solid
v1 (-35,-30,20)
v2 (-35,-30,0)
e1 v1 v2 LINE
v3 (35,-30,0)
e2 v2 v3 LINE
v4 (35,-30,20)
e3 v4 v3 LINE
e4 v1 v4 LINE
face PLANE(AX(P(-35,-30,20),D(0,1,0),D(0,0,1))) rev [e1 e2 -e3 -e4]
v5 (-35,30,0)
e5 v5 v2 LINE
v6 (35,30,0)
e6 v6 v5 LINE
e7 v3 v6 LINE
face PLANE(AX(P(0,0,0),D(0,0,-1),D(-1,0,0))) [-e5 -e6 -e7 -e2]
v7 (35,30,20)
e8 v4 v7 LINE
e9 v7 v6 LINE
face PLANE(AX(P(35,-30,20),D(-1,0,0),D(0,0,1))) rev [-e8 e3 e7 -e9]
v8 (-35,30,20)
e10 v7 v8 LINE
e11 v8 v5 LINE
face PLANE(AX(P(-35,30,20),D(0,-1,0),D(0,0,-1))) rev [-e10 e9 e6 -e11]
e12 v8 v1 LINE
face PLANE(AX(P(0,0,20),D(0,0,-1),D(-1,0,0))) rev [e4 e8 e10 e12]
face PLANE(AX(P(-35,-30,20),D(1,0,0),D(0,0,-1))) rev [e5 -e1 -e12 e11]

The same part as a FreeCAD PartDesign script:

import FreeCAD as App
import Part
import Sketcher

V = App.Vector

doc = App.newDocument("Part")
body = doc.addObject("PartDesign::Body", "Body")

# Sketch on XY plane
sketch1 = body.newObject("Sketcher::SketchObject", "Sketch")
sketch1.AttachmentSupport = (doc.getObject("XY_Plane"), [""])
sketch1.MapMode = "FlatFace"
sketch1.addGeometry(Part.LineSegment(V(-35, 30, 0), V(-35, -30, 0)), False)
sketch1.addGeometry(Part.LineSegment(V(-35, -30, 0), V(35, -30, 0)), False)
sketch1.addGeometry(Part.LineSegment(V(35, -30, 0), V(35, 30, 0)), False)
sketch1.addGeometry(Part.LineSegment(V(35, 30, 0), V(-35, 30, 0)), False)
sketch1.addConstraint(Sketcher.Constraint("Coincident", 0, 2, 1, 1))
sketch1.addConstraint(Sketcher.Constraint("Coincident", 1, 2, 2, 1))
sketch1.addConstraint(Sketcher.Constraint("Coincident", 2, 2, 3, 1))
sketch1.addConstraint(Sketcher.Constraint("Coincident", 3, 2, 0, 1))
sketch1.addConstraint(Sketcher.Constraint("Vertical", 0))
sketch1.addConstraint(Sketcher.Constraint("Horizontal", 1))
sketch1.addConstraint(Sketcher.Constraint("Vertical", 2))
sketch1.addConstraint(Sketcher.Constraint("Horizontal", 3))
sketch1.addConstraint(Sketcher.Constraint("Symmetric", 0, 2, 2, 2, -1, 1))
sketch1.addConstraint(Sketcher.Constraint("DistanceX", 1, 1, 1, 2, 70.0))
sketch1.addConstraint(Sketcher.Constraint("DistanceY", 0, 2, 0, 1, 60.0))
pad1 = body.newObject("PartDesign::Pad", "Pad")
pad1.Profile = sketch1
pad1.Length = 20

doc.recompute()
